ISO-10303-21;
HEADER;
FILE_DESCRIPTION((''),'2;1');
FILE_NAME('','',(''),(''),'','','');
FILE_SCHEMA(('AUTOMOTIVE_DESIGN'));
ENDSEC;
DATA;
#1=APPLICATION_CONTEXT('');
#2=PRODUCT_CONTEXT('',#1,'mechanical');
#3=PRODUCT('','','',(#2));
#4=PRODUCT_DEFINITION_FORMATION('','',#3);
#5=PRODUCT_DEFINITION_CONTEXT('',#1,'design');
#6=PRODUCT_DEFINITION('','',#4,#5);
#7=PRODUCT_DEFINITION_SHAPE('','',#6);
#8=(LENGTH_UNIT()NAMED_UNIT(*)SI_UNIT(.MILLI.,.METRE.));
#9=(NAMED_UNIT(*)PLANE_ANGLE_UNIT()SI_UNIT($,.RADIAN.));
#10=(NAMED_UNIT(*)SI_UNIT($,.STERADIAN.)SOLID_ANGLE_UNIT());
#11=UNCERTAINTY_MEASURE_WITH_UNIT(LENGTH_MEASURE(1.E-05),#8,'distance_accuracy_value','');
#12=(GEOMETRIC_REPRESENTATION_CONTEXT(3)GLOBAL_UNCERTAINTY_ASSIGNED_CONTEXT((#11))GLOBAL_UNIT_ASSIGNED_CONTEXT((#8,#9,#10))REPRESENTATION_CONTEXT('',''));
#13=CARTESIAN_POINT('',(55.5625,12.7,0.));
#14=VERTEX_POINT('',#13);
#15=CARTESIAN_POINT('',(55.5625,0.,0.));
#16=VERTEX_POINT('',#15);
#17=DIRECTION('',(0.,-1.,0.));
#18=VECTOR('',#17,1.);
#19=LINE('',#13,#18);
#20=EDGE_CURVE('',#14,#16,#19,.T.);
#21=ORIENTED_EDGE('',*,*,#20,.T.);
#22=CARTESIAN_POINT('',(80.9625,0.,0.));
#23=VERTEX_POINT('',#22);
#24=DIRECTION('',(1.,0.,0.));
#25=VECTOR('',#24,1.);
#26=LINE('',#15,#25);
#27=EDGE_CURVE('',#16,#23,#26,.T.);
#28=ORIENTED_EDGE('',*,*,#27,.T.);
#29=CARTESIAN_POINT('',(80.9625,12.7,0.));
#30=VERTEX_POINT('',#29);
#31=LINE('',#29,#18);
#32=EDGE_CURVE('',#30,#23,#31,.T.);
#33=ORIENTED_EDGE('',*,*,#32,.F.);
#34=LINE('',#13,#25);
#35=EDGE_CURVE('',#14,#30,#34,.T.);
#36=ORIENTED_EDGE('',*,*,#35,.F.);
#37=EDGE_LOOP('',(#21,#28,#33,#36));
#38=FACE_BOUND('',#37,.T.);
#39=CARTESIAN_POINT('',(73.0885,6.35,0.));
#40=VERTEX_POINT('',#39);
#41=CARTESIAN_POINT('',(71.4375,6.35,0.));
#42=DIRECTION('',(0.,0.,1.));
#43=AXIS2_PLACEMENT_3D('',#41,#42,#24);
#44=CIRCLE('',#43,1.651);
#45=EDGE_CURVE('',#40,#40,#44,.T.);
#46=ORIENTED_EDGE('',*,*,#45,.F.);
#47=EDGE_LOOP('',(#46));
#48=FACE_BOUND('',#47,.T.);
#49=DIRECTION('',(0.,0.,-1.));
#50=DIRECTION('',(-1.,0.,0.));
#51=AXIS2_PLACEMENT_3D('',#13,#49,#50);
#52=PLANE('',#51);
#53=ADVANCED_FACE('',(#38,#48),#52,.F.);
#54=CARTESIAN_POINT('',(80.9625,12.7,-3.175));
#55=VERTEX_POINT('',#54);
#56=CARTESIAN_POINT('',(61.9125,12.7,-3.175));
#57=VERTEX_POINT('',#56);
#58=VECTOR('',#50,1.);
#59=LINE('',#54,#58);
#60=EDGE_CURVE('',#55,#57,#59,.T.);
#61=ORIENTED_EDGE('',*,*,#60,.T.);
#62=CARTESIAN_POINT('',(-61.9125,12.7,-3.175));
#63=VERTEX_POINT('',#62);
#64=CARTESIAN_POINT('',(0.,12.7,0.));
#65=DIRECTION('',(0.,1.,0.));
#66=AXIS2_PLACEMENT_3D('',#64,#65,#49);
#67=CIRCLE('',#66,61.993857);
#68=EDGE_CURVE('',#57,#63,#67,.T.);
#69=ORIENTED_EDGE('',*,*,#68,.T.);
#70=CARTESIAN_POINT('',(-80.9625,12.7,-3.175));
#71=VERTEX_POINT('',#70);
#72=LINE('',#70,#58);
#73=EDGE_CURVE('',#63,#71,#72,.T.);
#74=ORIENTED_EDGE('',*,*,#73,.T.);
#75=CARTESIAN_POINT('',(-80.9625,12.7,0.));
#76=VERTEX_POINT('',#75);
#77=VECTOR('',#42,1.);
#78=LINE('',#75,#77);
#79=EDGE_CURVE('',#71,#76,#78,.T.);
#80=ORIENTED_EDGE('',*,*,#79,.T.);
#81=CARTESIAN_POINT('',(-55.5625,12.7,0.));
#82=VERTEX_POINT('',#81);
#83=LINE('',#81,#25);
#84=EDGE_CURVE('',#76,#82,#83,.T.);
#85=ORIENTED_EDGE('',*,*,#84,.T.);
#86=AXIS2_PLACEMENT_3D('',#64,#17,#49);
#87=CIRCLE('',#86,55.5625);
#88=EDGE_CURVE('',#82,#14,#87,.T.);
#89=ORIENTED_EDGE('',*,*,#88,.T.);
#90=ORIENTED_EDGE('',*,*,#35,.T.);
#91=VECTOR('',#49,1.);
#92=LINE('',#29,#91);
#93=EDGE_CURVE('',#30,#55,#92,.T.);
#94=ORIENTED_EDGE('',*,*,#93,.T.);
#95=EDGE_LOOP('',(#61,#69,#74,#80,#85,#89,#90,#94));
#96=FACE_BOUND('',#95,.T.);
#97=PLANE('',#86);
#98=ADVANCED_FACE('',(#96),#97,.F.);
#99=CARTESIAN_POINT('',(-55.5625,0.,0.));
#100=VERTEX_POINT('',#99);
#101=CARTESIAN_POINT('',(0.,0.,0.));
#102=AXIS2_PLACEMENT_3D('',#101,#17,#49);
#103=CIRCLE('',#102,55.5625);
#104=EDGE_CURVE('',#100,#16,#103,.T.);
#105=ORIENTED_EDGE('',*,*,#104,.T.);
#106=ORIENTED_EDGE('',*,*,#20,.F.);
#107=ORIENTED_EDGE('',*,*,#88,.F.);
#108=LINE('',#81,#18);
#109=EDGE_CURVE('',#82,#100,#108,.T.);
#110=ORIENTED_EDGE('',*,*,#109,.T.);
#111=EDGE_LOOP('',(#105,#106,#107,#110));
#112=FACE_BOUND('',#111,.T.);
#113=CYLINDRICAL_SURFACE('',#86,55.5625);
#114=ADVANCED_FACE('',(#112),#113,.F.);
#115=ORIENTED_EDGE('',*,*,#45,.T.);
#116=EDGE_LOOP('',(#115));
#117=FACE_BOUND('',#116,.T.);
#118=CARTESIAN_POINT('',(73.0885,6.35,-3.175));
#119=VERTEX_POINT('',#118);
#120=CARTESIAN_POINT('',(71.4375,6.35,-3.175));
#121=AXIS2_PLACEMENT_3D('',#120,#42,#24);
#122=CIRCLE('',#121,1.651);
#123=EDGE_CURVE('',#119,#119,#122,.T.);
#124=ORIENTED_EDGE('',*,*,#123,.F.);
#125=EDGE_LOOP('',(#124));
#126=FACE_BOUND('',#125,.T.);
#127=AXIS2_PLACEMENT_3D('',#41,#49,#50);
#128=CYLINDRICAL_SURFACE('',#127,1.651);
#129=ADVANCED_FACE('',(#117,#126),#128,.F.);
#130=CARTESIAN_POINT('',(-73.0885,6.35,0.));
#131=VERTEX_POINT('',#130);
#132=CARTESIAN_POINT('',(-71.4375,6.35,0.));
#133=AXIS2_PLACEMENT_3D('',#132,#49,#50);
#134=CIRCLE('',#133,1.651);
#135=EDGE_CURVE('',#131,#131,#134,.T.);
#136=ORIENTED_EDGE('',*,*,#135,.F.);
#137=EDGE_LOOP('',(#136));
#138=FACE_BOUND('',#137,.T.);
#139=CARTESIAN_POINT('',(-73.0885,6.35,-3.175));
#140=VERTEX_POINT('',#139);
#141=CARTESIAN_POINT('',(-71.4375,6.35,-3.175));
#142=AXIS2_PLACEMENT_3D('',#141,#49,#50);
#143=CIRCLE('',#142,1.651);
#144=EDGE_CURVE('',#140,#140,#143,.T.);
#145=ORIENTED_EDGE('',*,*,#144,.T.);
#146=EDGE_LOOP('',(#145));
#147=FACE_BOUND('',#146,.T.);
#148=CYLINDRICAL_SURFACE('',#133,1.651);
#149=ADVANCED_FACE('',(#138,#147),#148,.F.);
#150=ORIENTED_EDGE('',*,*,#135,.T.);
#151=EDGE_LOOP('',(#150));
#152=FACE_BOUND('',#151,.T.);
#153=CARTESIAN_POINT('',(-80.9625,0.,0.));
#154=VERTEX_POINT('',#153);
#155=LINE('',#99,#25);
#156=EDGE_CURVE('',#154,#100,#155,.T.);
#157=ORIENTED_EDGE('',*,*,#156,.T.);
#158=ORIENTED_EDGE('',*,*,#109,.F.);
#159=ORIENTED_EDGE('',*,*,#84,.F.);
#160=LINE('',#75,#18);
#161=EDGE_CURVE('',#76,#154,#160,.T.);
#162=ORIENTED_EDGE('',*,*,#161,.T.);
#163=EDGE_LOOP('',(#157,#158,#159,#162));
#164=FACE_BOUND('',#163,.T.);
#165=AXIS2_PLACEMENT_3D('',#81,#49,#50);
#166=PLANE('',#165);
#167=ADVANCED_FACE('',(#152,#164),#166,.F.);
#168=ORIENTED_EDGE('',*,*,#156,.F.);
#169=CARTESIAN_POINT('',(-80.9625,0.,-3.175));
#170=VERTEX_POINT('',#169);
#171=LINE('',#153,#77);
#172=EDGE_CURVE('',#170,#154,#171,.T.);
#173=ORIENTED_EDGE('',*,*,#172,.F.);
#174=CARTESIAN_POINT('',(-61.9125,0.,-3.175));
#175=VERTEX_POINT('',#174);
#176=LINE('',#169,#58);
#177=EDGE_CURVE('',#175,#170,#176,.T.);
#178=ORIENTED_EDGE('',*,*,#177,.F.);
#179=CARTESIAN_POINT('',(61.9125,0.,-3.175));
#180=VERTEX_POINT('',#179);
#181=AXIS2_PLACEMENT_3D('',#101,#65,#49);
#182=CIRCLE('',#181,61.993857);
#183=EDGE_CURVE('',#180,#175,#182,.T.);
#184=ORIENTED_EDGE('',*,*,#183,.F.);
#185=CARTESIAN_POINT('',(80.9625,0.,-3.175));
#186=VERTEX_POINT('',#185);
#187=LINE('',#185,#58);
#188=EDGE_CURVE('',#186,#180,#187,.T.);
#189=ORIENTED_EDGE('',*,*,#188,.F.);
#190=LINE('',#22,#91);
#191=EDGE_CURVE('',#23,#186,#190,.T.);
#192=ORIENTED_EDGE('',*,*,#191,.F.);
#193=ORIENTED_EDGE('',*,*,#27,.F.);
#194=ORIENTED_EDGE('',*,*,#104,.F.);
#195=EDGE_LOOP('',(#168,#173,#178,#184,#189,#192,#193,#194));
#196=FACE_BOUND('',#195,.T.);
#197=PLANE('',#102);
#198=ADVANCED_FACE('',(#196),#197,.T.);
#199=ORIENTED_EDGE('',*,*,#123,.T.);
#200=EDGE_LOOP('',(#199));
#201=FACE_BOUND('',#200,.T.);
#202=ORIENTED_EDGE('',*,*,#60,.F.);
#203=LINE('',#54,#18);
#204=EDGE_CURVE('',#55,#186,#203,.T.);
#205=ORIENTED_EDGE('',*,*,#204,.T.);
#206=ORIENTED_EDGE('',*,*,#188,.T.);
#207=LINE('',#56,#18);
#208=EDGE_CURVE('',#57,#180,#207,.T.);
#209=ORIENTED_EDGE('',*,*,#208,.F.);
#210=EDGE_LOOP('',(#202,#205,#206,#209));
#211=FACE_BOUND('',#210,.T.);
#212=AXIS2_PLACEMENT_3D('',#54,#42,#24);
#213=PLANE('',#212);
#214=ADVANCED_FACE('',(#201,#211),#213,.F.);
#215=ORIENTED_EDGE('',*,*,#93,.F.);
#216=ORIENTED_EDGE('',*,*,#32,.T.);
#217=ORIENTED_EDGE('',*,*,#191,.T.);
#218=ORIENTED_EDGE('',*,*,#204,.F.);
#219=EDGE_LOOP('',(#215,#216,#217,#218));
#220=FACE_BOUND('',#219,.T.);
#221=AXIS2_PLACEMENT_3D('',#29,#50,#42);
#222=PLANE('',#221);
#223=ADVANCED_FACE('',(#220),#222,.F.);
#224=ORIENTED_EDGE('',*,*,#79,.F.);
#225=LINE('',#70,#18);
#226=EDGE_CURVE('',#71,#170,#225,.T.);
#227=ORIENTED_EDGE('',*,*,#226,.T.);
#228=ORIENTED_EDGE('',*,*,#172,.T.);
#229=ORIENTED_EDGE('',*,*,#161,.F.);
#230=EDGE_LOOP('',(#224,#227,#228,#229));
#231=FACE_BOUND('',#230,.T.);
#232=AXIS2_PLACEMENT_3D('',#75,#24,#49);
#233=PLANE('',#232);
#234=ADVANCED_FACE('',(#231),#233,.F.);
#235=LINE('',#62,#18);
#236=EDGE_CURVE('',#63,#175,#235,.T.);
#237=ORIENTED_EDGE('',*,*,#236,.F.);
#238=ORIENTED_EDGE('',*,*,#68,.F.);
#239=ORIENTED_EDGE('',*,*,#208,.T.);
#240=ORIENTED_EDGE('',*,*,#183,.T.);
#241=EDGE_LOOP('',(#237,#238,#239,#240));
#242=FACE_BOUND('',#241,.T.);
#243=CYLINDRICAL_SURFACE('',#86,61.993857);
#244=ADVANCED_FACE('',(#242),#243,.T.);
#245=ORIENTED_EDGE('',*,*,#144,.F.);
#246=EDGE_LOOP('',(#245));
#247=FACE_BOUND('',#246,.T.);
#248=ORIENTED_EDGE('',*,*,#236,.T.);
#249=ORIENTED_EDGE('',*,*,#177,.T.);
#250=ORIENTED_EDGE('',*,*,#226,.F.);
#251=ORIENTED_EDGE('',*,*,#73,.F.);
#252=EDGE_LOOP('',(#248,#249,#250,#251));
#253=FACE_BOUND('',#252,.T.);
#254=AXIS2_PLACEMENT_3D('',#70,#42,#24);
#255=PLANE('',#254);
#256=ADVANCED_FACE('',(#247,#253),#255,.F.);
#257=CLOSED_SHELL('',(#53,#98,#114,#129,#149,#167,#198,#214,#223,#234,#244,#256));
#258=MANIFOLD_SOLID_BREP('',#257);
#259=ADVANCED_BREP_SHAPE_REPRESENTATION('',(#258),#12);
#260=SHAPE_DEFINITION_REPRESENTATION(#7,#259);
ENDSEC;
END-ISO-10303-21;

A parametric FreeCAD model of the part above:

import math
import FreeCAD as App
import Part
import Sketcher
Q = App.Units.Quantity

doc = App.newDocument("Part")
params = doc.addObject("Spreadsheet::Sheet", "Params")
for row, (alias, value) in enumerate([
    ("sketch1_width", "1 in"),
    ("sketch1_radius", "2.1875 in"),
    ("sketch1_width2", "0.75 in"),
    ("sketch1_height", "0.125 in"),
    ("pad1_length", "0.5 in"),
    ("sketch2_diameter", "0.13 in"),
], start=1):
    params.set(f"A{row}", alias)
    params.set(f"B{row}", "=" + value)
    params.setAlias(f"B{row}", alias)

body = doc.addObject("PartDesign::Body", "Body")

sketch1 = body.newObject("Sketcher::SketchObject", "Sketch")
sketch1.AttachmentSupport = (doc.getObject("XZ_Plane"), [""])
sketch1.MapMode = "FlatFace"
sketch1.addGeometry([
    Part.LineSegment(App.Vector(-81, 0, 0), App.Vector(-55.6, 0, 0)),
    Part.ArcOfCircle(Part.Circle(App.Vector(0, 0, 0), App.Vector(0, 0, 1), 55.6), math.radians(180), math.radians(360)),
    Part.LineSegment(App.Vector(55.6, 0, 0), App.Vector(81, 0, 0)),
    Part.LineSegment(App.Vector(81, 0, 0), App.Vector(81, -3.2, 0)),
    Part.LineSegment(App.Vector(81, -3.2, 0), App.Vector(61.9, -3.2, 0)),
    Part.ArcOfCircle(Part.Circle(App.Vector(0, 0, 0), App.Vector(0, 0, 1), 62), math.radians(-177), math.radians(-3)),
    Part.LineSegment(App.Vector(-61.9, -3.2, 0), App.Vector(-81, -3.2, 0)),
    Part.LineSegment(App.Vector(-81, -3.2, 0), App.Vector(-81, 0, 0)),
], False)
sketch1.addConstraint([
    Sketcher.Constraint("Coincident", 0, 2, 1, 1),
    Sketcher.Constraint("Coincident", 1, 2, 2, 1),
    Sketcher.Constraint("Coincident", 2, 2, 3, 1),
    Sketcher.Constraint("Coincident", 3, 2, 4, 1),
    Sketcher.Constraint("Coincident", 4, 2, 5, 2),
    Sketcher.Constraint("Coincident", 5, 1, 6, 1),
    Sketcher.Constraint("Coincident", 6, 2, 7, 1),
    Sketcher.Constraint("Coincident", 7, 2, 0, 1),
    Sketcher.Constraint("Horizontal", 0),
    Sketcher.Constraint("Horizontal", 2),
    Sketcher.Constraint("Vertical", 3),
    Sketcher.Constraint("Horizontal", 4),
    Sketcher.Constraint("Horizontal", 6),
    Sketcher.Constraint("Vertical", 7),
    Sketcher.Constraint("Coincident", 1, 3, -1, 1),
    Sketcher.Constraint("Coincident", 5, 3, -1, 1),
    Sketcher.Constraint("Symmetric", 2, 2, 7, 2, -1, 1),
    Sketcher.Constraint("PointOnObject", 0, 2, -1),
    Sketcher.Constraint("Horizontal", 4, 2, 5, 1),
    Sketcher.Constraint("DistanceX", 0, 1, 0, 2, Q("1 in")),
    Sketcher.Constraint("Radius", 1, Q("2.1875 in")),
    Sketcher.Constraint("DistanceX", 4, 2, 4, 1, Q("0.75 in")),
    Sketcher.Constraint("DistanceY", 3, 2, 3, 1, Q("0.125 in")),
])
sketch1.setExpression("Constraints[19]", "Params.sketch1_width")
sketch1.setExpression("Constraints[20]", "Params.sketch1_radius")
sketch1.setExpression("Constraints[21]", "Params.sketch1_width2")
sketch1.setExpression("Constraints[22]", "Params.sketch1_height")
pad1 = body.newObject("PartDesign::Pad", "Pad")
pad1.Profile = sketch1
pad1.setExpression("Length", "Params.pad1_length")
pad1.Reversed = True

sketch2 = body.newObject("Sketcher::SketchObject", "Sketch001")
sketch2.AttachmentSupport = (doc.getObject("XY_Plane"), [""])
sketch2.MapMode = "FlatFace"
sketch2.AttachmentOffset = App.Placement(App.Vector(0, 0, -0.125 * 25.4), App.Rotation())
sketch2.addGeometry(Part.Circle(App.Vector(-71.4, 6.3, 0), App.Vector(0, 0, 1), 1.7), False)
sketch2.addConstraint([
    Sketcher.Constraint("Diameter", 0, Q("0.13 in")),
    Sketcher.Constraint("DistanceY", -1, 1, 0, 3, Q("0.25 in")),
    Sketcher.Constraint("DistanceX", 0, 3, -1, 1, Q("2.8125 in")),
])
sketch2.setExpression("Constraints[0]", "Params.sketch2_diameter")
pocket1 = body.newObject("PartDesign::Pocket", "Pocket")
pocket1.Profile = sketch2
pocket1.Type = "ThroughAll"
pocket1.Reversed = True
doc.recompute()

mirrored = body.newObject("PartDesign::Mirrored", "Mirrored")
mirrored.Originals = [pocket1]
mirrored.MirrorPlane = (doc.getObject("YZ_Plane"), [""])
body.Tip = mirrored

doc.recompute()
